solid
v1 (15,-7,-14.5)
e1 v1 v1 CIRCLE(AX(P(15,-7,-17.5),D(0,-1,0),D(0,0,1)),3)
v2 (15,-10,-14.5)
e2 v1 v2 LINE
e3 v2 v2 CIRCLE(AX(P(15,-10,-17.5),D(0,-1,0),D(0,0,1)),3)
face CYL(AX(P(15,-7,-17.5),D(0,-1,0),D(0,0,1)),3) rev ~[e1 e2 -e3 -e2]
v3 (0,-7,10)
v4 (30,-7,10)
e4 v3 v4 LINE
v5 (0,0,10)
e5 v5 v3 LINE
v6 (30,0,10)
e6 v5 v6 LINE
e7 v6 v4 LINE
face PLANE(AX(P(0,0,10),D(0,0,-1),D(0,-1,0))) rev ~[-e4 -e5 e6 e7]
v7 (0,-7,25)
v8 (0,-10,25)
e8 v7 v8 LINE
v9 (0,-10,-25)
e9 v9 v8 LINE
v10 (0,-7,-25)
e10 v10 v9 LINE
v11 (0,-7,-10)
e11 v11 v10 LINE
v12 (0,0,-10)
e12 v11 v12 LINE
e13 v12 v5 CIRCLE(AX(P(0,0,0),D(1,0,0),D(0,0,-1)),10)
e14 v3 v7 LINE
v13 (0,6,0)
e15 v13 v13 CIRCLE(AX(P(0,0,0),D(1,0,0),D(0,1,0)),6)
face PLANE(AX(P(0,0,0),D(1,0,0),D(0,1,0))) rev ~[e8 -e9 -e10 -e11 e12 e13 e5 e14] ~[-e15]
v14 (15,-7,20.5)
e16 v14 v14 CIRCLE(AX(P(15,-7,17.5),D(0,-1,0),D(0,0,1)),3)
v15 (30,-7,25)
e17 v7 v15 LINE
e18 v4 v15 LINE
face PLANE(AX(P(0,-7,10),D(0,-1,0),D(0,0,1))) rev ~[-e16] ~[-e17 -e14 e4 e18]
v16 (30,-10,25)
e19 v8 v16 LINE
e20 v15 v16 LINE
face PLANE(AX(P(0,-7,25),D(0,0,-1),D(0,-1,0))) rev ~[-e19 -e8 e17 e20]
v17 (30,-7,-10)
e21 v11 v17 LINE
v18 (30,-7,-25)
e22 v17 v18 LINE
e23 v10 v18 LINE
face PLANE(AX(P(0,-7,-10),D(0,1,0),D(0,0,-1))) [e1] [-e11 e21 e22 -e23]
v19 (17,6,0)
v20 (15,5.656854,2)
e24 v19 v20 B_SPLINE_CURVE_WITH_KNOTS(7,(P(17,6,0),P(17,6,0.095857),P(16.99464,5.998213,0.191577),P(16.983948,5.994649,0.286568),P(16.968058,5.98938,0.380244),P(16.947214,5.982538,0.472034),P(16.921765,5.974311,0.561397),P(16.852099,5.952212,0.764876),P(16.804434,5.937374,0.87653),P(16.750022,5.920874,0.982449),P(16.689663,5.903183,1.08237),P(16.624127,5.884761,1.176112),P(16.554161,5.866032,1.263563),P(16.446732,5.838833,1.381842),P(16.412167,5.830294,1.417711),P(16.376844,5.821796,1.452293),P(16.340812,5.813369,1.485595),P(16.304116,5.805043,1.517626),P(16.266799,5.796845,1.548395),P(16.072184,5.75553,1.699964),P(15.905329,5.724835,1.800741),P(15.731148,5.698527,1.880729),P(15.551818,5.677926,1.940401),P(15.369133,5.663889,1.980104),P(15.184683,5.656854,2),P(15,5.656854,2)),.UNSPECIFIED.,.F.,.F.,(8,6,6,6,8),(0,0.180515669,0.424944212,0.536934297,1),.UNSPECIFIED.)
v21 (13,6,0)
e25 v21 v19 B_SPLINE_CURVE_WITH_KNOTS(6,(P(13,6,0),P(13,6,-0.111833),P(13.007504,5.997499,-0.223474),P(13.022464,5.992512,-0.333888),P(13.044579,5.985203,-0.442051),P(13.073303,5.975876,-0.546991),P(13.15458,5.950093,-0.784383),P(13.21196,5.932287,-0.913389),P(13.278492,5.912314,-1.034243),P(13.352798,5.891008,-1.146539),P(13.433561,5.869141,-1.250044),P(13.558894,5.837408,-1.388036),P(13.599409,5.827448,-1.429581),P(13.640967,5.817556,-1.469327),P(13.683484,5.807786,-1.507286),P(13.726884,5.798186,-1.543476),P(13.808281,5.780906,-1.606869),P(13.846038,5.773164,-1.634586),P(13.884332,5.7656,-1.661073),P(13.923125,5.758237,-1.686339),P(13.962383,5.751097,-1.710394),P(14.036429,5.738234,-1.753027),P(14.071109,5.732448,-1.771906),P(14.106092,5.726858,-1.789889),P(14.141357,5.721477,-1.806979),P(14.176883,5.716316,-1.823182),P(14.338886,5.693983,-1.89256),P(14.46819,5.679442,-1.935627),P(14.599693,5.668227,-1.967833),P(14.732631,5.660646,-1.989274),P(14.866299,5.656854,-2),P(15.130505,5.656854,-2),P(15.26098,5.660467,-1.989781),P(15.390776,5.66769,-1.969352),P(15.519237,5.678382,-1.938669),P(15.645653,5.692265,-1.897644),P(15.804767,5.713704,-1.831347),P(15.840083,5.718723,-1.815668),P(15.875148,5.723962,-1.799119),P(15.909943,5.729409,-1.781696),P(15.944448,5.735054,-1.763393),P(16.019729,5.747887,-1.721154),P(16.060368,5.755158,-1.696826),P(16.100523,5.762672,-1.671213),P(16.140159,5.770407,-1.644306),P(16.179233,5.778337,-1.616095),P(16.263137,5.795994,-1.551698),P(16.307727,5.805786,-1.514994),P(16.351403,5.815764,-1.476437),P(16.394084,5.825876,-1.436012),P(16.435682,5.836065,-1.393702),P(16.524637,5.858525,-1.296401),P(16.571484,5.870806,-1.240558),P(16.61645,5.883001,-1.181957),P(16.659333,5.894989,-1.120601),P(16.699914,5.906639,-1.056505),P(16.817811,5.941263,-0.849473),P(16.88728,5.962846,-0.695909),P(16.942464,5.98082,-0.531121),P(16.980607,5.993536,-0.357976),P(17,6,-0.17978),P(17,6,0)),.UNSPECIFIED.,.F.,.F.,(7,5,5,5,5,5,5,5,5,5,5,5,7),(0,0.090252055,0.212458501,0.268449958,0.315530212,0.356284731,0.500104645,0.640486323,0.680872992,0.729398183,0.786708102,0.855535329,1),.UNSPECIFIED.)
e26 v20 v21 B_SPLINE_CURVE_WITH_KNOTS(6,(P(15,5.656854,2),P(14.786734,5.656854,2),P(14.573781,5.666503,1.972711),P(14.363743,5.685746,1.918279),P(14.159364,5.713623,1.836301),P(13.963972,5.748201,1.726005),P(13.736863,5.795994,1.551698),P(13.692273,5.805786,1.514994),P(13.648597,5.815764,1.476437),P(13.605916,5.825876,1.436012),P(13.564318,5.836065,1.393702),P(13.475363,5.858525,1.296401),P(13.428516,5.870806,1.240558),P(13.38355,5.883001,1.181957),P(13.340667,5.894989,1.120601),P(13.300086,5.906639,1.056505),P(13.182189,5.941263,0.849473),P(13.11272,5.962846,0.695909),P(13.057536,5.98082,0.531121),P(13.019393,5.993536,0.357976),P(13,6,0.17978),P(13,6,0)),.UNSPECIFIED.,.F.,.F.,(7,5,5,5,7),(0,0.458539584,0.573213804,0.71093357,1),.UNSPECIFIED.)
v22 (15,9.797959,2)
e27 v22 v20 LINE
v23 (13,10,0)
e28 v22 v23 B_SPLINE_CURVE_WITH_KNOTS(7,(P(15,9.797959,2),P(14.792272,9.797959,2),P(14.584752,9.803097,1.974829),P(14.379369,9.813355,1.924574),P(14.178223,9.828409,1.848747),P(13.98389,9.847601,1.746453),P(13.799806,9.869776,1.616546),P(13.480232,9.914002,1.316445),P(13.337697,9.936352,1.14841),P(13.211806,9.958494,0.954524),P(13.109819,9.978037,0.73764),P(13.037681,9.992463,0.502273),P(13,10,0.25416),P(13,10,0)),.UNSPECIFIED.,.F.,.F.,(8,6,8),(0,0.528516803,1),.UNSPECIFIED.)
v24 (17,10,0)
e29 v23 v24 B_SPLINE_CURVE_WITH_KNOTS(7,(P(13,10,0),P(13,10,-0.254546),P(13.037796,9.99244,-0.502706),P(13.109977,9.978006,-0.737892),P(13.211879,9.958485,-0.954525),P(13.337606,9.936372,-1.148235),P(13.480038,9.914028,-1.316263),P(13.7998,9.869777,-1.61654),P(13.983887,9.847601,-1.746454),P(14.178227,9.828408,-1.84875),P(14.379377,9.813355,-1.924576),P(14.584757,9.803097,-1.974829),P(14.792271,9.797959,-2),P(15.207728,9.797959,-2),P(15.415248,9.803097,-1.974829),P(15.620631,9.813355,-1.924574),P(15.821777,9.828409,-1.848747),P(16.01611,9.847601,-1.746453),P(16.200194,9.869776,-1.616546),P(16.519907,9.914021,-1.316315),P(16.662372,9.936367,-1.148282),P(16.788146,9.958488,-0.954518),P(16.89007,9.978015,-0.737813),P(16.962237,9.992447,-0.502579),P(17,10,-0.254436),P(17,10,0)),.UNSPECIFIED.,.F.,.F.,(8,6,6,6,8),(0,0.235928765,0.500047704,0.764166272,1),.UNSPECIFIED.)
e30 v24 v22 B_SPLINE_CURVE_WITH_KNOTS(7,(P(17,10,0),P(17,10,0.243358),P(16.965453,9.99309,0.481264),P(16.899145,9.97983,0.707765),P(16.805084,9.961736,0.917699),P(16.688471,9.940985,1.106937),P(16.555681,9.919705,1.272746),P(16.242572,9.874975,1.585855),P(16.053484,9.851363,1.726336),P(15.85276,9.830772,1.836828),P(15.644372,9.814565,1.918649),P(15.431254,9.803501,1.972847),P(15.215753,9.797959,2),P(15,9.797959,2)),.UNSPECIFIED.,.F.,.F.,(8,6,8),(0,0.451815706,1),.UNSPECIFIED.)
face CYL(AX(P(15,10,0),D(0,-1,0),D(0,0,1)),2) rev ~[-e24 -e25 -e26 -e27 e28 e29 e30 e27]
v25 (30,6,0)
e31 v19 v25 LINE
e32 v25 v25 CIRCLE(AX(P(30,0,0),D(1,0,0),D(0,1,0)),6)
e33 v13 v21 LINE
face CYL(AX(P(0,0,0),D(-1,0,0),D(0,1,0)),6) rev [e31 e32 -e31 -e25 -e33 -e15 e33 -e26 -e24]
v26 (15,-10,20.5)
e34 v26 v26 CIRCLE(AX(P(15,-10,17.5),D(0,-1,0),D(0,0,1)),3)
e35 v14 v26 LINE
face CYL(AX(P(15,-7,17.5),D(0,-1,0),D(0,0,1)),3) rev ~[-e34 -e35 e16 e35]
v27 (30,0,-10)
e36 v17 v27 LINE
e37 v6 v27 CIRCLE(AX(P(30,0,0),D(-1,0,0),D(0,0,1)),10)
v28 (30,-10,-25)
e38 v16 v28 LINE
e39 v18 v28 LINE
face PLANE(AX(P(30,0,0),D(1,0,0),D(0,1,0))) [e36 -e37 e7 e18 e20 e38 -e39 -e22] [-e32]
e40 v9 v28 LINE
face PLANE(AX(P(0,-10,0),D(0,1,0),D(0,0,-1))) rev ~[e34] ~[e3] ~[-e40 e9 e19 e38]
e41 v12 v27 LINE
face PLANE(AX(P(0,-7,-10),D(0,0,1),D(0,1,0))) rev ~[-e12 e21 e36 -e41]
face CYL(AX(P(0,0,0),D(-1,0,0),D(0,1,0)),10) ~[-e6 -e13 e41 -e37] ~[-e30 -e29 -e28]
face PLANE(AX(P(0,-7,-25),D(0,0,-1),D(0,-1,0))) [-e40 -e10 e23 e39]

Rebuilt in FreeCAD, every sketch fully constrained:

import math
import FreeCAD as App
import Part
import Sketcher

doc = App.newDocument("Part")
body = doc.addObject("PartDesign::Body", "Body")

# Sketch on YZ plane
sketch1 = body.newObject("Sketcher::SketchObject", "Sketch")
sketch1.AttachmentSupport = (doc.getObject("YZ_Plane"), [""])
sketch1.MapMode = "FlatFace"
sketch1.addGeometry([
    Part.ArcOfCircle(Part.Circle(App.Vector(0, 0, 0), App.Vector(0, 0, 1), 10), math.radians(-90), math.radians(90)),  # 0
    Part.LineSegment(App.Vector(0, 10, 0), App.Vector(-7, 10, 0)),  # 1
    Part.LineSegment(App.Vector(-7, 10, 0), App.Vector(-7, 25, 0)),  # 2
    Part.LineSegment(App.Vector(-7, 25, 0), App.Vector(-10, 25, 0)),  # 3
    Part.LineSegment(App.Vector(-10, 25, 0), App.Vector(-10, -25, 0)),  # 4
    Part.LineSegment(App.Vector(-10, -25, 0), App.Vector(-7, -25, 0)),  # 5
    Part.LineSegment(App.Vector(-7, -25, 0), App.Vector(-7, -10, 0)),  # 6
    Part.LineSegment(App.Vector(-7, -10, 0), App.Vector(0, -10, 0)),  # 7
    Part.Circle(App.Vector(0, 0, 0), App.Vector(0, 0, 1), 6),  # 8
], False)
sketch1.addConstraint([
    Sketcher.Constraint("Tangent", 0, 2, 1, 1),
    Sketcher.Constraint("Coincident", 1, 2, 2, 1),
    Sketcher.Constraint("Coincident", 2, 2, 3, 1),
    Sketcher.Constraint("Coincident", 3, 2, 4, 1),
    Sketcher.Constraint("Coincident", 4, 2, 5, 1),
    Sketcher.Constraint("Coincident", 5, 2, 6, 1),
    Sketcher.Constraint("Coincident", 6, 2, 7, 1),
    Sketcher.Constraint("Tangent", 7, 2, 0, 1),
    Sketcher.Constraint("Horizontal", 1),
    Sketcher.Constraint("Vertical", 2),
    Sketcher.Constraint("Horizontal", 3),
    Sketcher.Constraint("Vertical", 4),
    Sketcher.Constraint("Horizontal", 5),
    Sketcher.Constraint("Vertical", 6),
    Sketcher.Constraint("Horizontal", 7),
    Sketcher.Constraint("Coincident", 0, 3, -1, 1),
    Sketcher.Constraint("Coincident", 8, 3, -1, 1),
    Sketcher.Constraint("Symmetric", 2, 2, 5, 2, -1),
    Sketcher.Constraint("Diameter", 8, 12.0),
    Sketcher.Constraint("Radius", 0, 10.0),
    Sketcher.Constraint("DistanceX", 3, 2, 3, 1, 3.0),
    Sketcher.Constraint("DistanceY", 2, 1, 2, 2, 15.0),
    Sketcher.Constraint("DistanceX", 1, 2, 1, 1, 7.0),
])
pad1 = body.newObject("PartDesign::Pad", "Pad")
pad1.Profile = sketch1
pad1.Length = 30

# Sketch on XZ plane
sketch2 = body.newObject("Sketcher::SketchObject", "Sketch001")
sketch2.AttachmentSupport = (doc.getObject("XZ_Plane"), [""])
sketch2.MapMode = "FlatFace"
sketch2.AttachmentOffset = App.Placement(App.Vector(0, 0, -10), App.Rotation())
sketch2.addGeometry(Part.Circle(App.Vector(15, 0, 0), App.Vector(0, 0, 1), 2), False)
sketch2.addConstraint([
    Sketcher.Constraint("PointOnObject", 0, 3, -1),
    Sketcher.Constraint("Diameter", 0, 4.0),
    Sketcher.Constraint("DistanceX", -1, 1, 0, 3, 15.0),
])
doc.recompute()
hole = body.newObject("PartDesign::Hole", "Hole")
hole.Profile = sketch2
hole.ThreadType = "None"
hole.Diameter = 4
hole.DepthType = "Dimension"
hole.Depth = 8
hole.DrillPoint = "Angled"
hole.DrillPointAngle = 118
hole.Reversed = True

# Sketch on XZ plane
sketch3 = body.newObject("Sketcher::SketchObject", "Sketch002")
sketch3.AttachmentSupport = (doc.getObject("XZ_Plane"), [""])
sketch3.MapMode = "FlatFace"
sketch3.AttachmentOffset = App.Placement(App.Vector(0, 0, 7), App.Rotation())
sketch3.addGeometry([
    Part.Circle(App.Vector(15, 17.5, 0), App.Vector(0, 0, 1), 3),
    Part.Circle(App.Vector(15, -17.5, 0), App.Vector(0, 0, 1), 3),
], False)
sketch3.addConstraint([
    Sketcher.Constraint("Equal", 0, 1),
    Sketcher.Constraint("Symmetric", 0, 3, 1, 3, -1),
    Sketcher.Constraint("Diameter", 0, 6.0),
    Sketcher.Constraint("DistanceX", -1, 1, 0, 3, 15.0),
    Sketcher.Constraint("DistanceY", 1, 3, 0, 3, 35.0),
])
doc.recompute()
hole2 = body.newObject("PartDesign::Hole", "Hole001")
hole2.Profile = sketch3
hole2.ThreadType = "None"
hole2.Diameter = 6
hole2.DepthType = "ThroughAll"
hole2.Reversed = True

doc.recompute()
